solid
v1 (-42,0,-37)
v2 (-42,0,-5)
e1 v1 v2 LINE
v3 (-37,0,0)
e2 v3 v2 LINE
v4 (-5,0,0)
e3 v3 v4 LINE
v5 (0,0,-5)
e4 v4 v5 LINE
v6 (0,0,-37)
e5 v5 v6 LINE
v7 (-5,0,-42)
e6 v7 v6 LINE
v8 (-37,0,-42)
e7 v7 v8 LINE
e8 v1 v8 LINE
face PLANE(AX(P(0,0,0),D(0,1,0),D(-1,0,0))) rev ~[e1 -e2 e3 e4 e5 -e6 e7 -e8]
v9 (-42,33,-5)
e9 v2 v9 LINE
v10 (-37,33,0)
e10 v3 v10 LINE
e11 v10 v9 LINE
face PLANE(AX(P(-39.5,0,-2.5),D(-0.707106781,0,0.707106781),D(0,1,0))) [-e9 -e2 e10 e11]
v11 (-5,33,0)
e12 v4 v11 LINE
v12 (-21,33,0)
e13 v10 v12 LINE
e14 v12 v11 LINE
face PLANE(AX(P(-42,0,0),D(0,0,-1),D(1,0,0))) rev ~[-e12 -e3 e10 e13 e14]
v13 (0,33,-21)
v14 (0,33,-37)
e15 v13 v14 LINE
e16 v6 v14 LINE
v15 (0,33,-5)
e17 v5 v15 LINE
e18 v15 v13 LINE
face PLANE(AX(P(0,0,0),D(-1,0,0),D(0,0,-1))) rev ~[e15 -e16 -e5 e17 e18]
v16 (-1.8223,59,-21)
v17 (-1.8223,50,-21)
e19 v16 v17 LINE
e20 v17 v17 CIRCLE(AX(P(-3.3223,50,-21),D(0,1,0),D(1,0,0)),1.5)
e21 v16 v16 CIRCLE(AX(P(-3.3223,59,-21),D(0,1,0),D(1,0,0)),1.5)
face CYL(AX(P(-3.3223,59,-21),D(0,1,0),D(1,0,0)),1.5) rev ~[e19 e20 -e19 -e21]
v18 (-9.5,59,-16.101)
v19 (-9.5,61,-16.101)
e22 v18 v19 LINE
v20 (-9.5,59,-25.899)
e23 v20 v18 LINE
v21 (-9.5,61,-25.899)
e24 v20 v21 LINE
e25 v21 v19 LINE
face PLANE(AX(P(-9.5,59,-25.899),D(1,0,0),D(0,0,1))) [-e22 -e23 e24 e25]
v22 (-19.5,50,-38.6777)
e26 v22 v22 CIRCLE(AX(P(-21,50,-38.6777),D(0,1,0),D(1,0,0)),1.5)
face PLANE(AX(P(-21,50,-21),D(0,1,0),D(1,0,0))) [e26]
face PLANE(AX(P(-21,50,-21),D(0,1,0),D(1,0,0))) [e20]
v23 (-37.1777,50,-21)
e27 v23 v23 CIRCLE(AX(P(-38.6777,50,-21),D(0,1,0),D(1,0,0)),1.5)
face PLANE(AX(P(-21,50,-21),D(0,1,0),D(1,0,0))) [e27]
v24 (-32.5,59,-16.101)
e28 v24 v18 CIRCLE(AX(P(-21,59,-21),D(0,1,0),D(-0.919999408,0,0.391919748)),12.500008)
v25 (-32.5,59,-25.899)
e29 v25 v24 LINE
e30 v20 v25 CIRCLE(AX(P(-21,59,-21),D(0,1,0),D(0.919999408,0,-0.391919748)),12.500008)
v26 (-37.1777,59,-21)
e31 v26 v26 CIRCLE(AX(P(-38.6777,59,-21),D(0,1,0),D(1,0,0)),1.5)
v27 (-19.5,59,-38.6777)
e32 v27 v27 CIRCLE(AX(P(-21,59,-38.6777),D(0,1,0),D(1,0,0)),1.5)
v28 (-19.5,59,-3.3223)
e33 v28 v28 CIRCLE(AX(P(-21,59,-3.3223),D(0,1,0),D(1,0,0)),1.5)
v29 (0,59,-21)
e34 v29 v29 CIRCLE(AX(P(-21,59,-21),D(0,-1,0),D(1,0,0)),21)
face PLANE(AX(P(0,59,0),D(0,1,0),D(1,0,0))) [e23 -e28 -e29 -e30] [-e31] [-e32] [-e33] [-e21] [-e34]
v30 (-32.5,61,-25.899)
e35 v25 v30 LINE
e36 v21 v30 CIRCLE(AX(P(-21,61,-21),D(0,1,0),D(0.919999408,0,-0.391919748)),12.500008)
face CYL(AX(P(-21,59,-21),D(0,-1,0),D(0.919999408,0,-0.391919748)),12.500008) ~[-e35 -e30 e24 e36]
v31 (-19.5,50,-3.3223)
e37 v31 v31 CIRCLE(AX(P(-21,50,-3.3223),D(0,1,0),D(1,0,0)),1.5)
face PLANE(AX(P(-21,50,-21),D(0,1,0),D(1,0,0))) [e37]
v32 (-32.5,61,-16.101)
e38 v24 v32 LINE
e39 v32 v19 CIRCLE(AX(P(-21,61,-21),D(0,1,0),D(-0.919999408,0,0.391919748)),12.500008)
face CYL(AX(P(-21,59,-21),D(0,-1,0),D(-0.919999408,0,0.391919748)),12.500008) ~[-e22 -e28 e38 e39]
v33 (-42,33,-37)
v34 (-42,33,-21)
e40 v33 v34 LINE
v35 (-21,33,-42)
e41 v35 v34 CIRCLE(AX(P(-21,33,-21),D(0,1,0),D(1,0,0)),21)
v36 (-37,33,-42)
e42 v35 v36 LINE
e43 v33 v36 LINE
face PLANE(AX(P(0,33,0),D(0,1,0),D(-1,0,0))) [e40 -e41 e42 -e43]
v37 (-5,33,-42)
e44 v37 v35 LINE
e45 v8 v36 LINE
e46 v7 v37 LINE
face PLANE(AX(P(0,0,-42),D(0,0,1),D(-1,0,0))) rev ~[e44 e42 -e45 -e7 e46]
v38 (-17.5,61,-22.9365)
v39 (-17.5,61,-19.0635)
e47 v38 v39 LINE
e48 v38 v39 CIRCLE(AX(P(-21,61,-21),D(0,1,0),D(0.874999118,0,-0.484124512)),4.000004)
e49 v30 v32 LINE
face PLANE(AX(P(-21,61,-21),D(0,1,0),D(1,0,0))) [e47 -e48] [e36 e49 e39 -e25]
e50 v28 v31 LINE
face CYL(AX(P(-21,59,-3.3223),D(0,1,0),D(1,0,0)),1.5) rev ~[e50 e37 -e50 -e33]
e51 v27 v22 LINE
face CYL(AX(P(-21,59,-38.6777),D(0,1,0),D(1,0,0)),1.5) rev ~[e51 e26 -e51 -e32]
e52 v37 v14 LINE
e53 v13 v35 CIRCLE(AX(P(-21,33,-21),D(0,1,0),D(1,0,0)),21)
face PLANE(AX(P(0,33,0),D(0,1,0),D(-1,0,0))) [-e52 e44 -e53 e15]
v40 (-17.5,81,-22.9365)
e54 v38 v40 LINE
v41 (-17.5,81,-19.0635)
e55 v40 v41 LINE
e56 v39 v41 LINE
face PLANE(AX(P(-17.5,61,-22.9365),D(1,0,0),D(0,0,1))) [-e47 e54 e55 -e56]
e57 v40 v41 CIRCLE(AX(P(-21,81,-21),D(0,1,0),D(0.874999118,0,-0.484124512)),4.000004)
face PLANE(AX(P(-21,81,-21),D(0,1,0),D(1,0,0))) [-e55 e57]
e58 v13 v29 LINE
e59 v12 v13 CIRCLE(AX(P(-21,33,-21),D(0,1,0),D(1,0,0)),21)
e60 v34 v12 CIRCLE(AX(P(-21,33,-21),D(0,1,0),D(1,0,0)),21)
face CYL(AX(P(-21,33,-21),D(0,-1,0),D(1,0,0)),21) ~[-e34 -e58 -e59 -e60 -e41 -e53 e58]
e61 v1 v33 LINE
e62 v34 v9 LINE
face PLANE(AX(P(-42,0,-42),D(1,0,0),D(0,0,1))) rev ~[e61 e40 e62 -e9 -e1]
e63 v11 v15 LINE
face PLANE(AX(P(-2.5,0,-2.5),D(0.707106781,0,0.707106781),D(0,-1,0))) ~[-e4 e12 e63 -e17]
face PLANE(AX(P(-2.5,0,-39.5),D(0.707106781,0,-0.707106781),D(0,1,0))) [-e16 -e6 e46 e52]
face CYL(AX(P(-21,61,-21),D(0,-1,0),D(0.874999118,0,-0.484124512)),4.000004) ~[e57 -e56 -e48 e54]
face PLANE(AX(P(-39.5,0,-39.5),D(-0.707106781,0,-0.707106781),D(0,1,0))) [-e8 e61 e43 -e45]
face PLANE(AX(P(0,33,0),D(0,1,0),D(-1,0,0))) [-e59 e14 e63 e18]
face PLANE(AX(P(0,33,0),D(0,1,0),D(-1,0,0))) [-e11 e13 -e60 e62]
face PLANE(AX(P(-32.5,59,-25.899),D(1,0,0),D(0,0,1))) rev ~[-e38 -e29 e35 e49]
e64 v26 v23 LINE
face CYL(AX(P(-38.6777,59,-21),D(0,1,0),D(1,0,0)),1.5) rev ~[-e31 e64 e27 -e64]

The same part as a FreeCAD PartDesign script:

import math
import FreeCAD as App
import Part
import Sketcher
from FreeCAD import Vector
Q = App.Units.Quantity


def edges_at(feature, points):
    """Names of the edges that pass closest to the given points."""
    edges = feature.Shape.Edges
    near = lambda p: min(range(len(edges)), key=lambda i: edges[i].distToShape(Part.Vertex(*p))[0])
    return sorted({f"Edge{near(p) + 1}" for p in points})

doc = App.newDocument("Part")
params = doc.addObject("Spreadsheet::Sheet", "Params")
for row, (alias, value) in enumerate([
    ("sketch1_width", "42 mm"),
    ("pad1_length", "33 mm"),
    ("chamfer_size", "5 mm"),
    ("sketch2_diameter", "42 mm"),
    ("pad2_length", "26 mm"),
    ("sketch3_radius", "12.5 mm"),
    ("pad3_length", "2 mm"),
    ("sketch4_radius", "4 mm"),
    ("pad4_length", "20 mm"),
    ("sketch5_diameter", "3 mm"),
    ("pocket1_length", "9 mm"),
], start=1):
    params.set(f"A{row}", alias)
    params.set(f"B{row}", "=" + value)
    params.setAlias(f"B{row}", alias)

body = doc.addObject("PartDesign::Body", "Body")

sketch1 = body.newObject("Sketcher::SketchObject", "Sketch")
sketch1.AttachmentSupport = (doc.getObject("XZ_Plane"), [""])
sketch1.MapMode = "FlatFace"
sketch1.addGeometry([
    Part.LineSegment(Vector(-42, 0, 0), Vector(0, 0, 0)),
    Part.LineSegment(Vector(0, 0, 0), Vector(0, -42, 0)),
    Part.LineSegment(Vector(0, -42, 0), Vector(-42, -42, 0)),
    Part.LineSegment(Vector(-42, -42, 0), Vector(-42, 0, 0)),
], False)
sketch1.addConstraint([
    Sketcher.Constraint("Coincident", 0, 2, 1, 1),
    Sketcher.Constraint("Coincident", 1, 2, 2, 1),
    Sketcher.Constraint("Coincident", 2, 2, 3, 1),
    Sketcher.Constraint("Coincident", 3, 2, 0, 1),
    Sketcher.Constraint("Horizontal", 0),
    Sketcher.Constraint("Vertical", 1),
    Sketcher.Constraint("Horizontal", 2),
    Sketcher.Constraint("Vertical", 3),
    Sketcher.Constraint("Coincident", 0, 2, -1, 1),
    Sketcher.Constraint("Equal", 2, 1),
    Sketcher.Constraint("DistanceX", 0, 1, 0, 2, Q("42 mm")),
])
sketch1.setExpression("Constraints[10]", "Params.sketch1_width")
pad1 = body.newObject("PartDesign::Pad", "Pad")
pad1.Profile = sketch1
pad1.setExpression("Length", "Params.pad1_length")
pad1.Reversed = True
doc.recompute()

chamfer = body.newObject("PartDesign::Chamfer", "Chamfer")
chamfer.Base = (pad1, edges_at(pad1, [
    (0, 16.5, 0),
    (-42, 16.5, 0),
    (-42, 16.5, -42),
    (0, 16.5, -42),
]))
chamfer.setExpression("Size", "Params.chamfer_size")

sketch2 = body.newObject("Sketcher::SketchObject", "Sketch001")
sketch2.AttachmentSupport = (doc.getObject("XZ_Plane"), [""])
sketch2.MapMode = "FlatFace"
sketch2.AttachmentOffset = App.Placement(Vector(0, 0, -33), App.Rotation())
sketch2.addGeometry(Part.Circle(Vector(-21, -21, 0), Vector(0, 0, 1), 21), False)
sketch2.addConstraint([
    Sketcher.Constraint("Diameter", 0, Q("42 mm")),
    Sketcher.Constraint("DistanceX", 0, 3, -1, 1, Q("21 mm")),
    Sketcher.Constraint("DistanceY", 0, 3, -1, 1, Q("21 mm")),
])
sketch2.setExpression("Constraints[0]", "Params.sketch2_diameter")
pad2 = body.newObject("PartDesign::Pad", "Pad001")
pad2.Profile = sketch2
pad2.setExpression("Length", "Params.pad2_length")
pad2.Reversed = True

sketch3 = body.newObject("Sketcher::SketchObject", "Sketch002")
sketch3.AttachmentSupport = (doc.getObject("XZ_Plane"), [""])
sketch3.MapMode = "FlatFace"
sketch3.AttachmentOffset = App.Placement(Vector(0, 0, -59), App.Rotation())
sketch3.addGeometry([
    Part.LineSegment(Vector(-9.5, -16.101, 0), Vector(-9.5, -25.899, 0)),
    Part.ArcOfCircle(Part.Circle(Vector(-21, -21, 0), Vector(0, 0, 1), 12.500008), math.radians(-156.925995), math.radians(-23.074005)),
    Part.LineSegment(Vector(-32.5, -25.899, 0), Vector(-32.5, -16.101, 0)),
    Part.ArcOfCircle(Part.Circle(Vector(-21, -21, 0), Vector(0, 0, 1), 12.500008), math.radians(23.074005), math.radians(156.925995)),
], False)
sketch3.addConstraint([
    Sketcher.Constraint("Coincident", 0, 2, 1, 2),
    Sketcher.Constraint("Coincident", 1, 1, 2, 1),
    Sketcher.Constraint("Coincident", 2, 2, 3, 2),
    Sketcher.Constraint("Coincident", 3, 1, 0, 1),
    Sketcher.Constraint("Vertical", 0),
    Sketcher.Constraint("Vertical", 2),
    Sketcher.Constraint("Coincident", 3, 3, 1, 3),
    Sketcher.Constraint("Equal", 1, 3),
    Sketcher.Constraint("Horizontal", 0, 2, 1, 1),
    Sketcher.Constraint("Radius", 1, Q("12.5 mm")),
    Sketcher.Constraint("DistanceX", 1, 3, 0, 2, Q("11.5 mm")),
    Sketcher.Constraint("DistanceX", 1, 3, -1, 1, Q("21 mm")),
    Sketcher.Constraint("DistanceY", 1, 3, -1, 1, Q("21 mm")),
])
sketch3.setExpression("Constraints[9]", "Params.sketch3_radius")
pad3 = body.newObject("PartDesign::Pad", "Pad002")
pad3.Profile = sketch3
pad3.setExpression("Length", "Params.pad3_length")
pad3.Reversed = True

sketch4 = body.newObject("Sketcher::SketchObject", "Sketch003")
sketch4.AttachmentSupport = (doc.getObject("XZ_Plane"), [""])
sketch4.MapMode = "FlatFace"
sketch4.AttachmentOffset = App.Placement(Vector(0, 0, -61), App.Rotation())
sketch4.addGeometry([
    Part.LineSegment(Vector(-17.5, -19.0635, 0), Vector(-17.5, -22.9365, 0)),
    Part.ArcOfCircle(Part.Circle(Vector(-21, -21, 0), Vector(0, 0, 1), 4.000004), math.radians(28.955129), math.radians(331.044871)),
], False)
sketch4.addConstraint([
    Sketcher.Constraint("Coincident", 0, 1, 1, 1),
    Sketcher.Constraint("Coincident", 1, 2, 0, 2),
    Sketcher.Constraint("Vertical", 0),
    Sketcher.Constraint("Radius", 1, Q("4 mm")),
    Sketcher.Constraint("DistanceX", 1, 3, 0, 1, Q("3.5 mm")),
    Sketcher.Constraint("DistanceX", 1, 3, -1, 1, Q("21 mm")),
    Sketcher.Constraint("DistanceY", 1, 3, -1, 1, Q("21 mm")),
])
sketch4.setExpression("Constraints[3]", "Params.sketch4_radius")
pad4 = body.newObject("PartDesign::Pad", "Pad003")
pad4.Profile = sketch4
pad4.setExpression("Length", "Params.pad4_length")
pad4.Reversed = True

sketch5 = body.newObject("Sketcher::SketchObject", "Sketch004")
sketch5.AttachmentSupport = (doc.getObject("XZ_Plane"), [""])
sketch5.MapMode = "FlatFace"
sketch5.AttachmentOffset = App.Placement(Vector(0, 0, -59), App.Rotation())
sketch5.addGeometry([
    Part.Circle(Vector(-21, -3.3223, 0), Vector(0, 0, 1), 1.5),
    Part.Circle(Vector(-3.3223, -21, 0), Vector(0, 0, 1), 1.5),
    Part.Circle(Vector(-21, -38.6777, 0), Vector(0, 0, 1), 1.5),
    Part.Circle(Vector(-38.6777, -21, 0), Vector(0, 0, 1), 1.5),
], False)
sketch5.addConstraint([
    Sketcher.Constraint("Equal", 0, 1),
    Sketcher.Constraint("Equal", 1, 2),
    Sketcher.Constraint("Equal", 2, 3),
    Sketcher.Constraint("Horizontal", 1, 3, 3, 3),
    Sketcher.Constraint("Vertical", 0, 3, 2, 3),
    Sketcher.Constraint("Diameter", 0, Q("3 mm")),
    Sketcher.Constraint("DistanceX", 0, 3, -1, 1, Q("21 mm")),
    Sketcher.Constraint("DistanceY", 1, 3, -1, 1, Q("21 mm")),
    Sketcher.Constraint("DistanceX", 0, 3, 1, 3, Q("17.6777 mm")),
    Sketcher.Constraint("DistanceY", 1, 3, 0, 3, Q("17.6777 mm")),
    Sketcher.Constraint("DistanceY", 2, 3, 1, 3, Q("17.6777 mm")),
    Sketcher.Constraint("DistanceX", 3, 3, 0, 3, Q("17.6777 mm")),
])
sketch5.setExpression("Constraints[5]", "Params.sketch5_diameter")
pocket1 = body.newObject("PartDesign::Pocket", "Pocket")
pocket1.Profile = sketch5
pocket1.setExpression("Length", "Params.pocket1_length")
pocket1.Reversed = True

doc.recompute()
